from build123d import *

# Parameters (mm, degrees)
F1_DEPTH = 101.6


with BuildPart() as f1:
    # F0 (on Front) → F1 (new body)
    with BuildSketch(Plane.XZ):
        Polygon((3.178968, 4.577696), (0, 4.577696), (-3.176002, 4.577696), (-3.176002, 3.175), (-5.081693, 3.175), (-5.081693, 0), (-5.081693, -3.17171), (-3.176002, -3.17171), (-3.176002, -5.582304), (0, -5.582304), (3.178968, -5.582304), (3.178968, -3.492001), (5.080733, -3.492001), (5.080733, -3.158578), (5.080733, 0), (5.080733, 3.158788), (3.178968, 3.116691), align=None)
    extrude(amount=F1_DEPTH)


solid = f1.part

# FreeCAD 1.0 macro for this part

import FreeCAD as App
import Part
import Sketcher
from FreeCAD import Vector
Q = App.Units.Quantity


def add_polygon(sketch, points):
    """Adds a closed chain of lines whose ends are joined by coincident constraints."""
    first, n = sketch.GeometryCount, len(points)
    for a, b in zip(points, points[1:] + points[:1]):
        sketch.addGeometry(Part.LineSegment(App.Vector(*a, 0), App.Vector(*b, 0)), False)
    for i in range(n):
        sketch.addConstraint(Sketcher.Constraint("Coincident", first + i, 2, first + (i + 1) % n, 1))

doc = App.newDocument("Part")
body = doc.addObject("PartDesign::Body", "Body")

# Sketch on XZ plane
sketch1 = body.newObject("Sketcher::SketchObject", "Sketch")
sketch1.AttachmentSupport = (doc.getObject("XZ_Plane"), [""])
sketch1.MapMode = "FlatFace"
add_polygon(sketch1, [(3.178968, 4.577696), (-3.176002, 4.577696), (-3.176002, 3.175), (-5.081693, 3.175), (-5.081693, -3.17171), (-3.176002, -3.17171), (-3.176002, -5.582304), (3.178968, -5.582304), (3.178968, -3.492001), (5.080733, -3.492001), (5.080733, 3.158788), (3.178968, 3.116691)])  # lines 0-11
sketch1.addConstraint([
    Sketcher.Constraint("Horizontal", 0),
    Sketcher.Constraint("Vertical", 1),
    Sketcher.Constraint("Horizontal", 2),
    Sketcher.Constraint("Vertical", 3),
    Sketcher.Constraint("Horizontal", 4),
    Sketcher.Constraint("Vertical", 5),
    Sketcher.Constraint("Horizontal", 6),
    Sketcher.Constraint("Vertical", 7),
    Sketcher.Constraint("Horizontal", 8),
    Sketcher.Constraint("Vertical", 9),
    Sketcher.Constraint("Vertical", 11),
    Sketcher.Constraint("Vertical", 1, 2, 4, 2),
    Sketcher.Constraint("Vertical", 7, 2, 10, 2),
    Sketcher.Constraint("DistanceY", 5, 2, 0, 2, Q("0.4 in")),
    Sketcher.Constraint("DistanceY", -1, 1, 1, 2, Q("0.125 in")),
    Sketcher.Constraint("DistanceX", 0, 2, 0, 1, Q("6.35497 mm")),
    Sketcher.Constraint("DistanceX", 2, 2, 2, 1, Q("1.905691 mm")),
    Sketcher.Constraint("DistanceY", 3, 2, 3, 1, Q("6.34671 mm")),
    Sketcher.Constraint("DistanceY", 9, 1, 9, 2, Q("6.650789 mm")),
    Sketcher.Constraint("DistanceX", 0, 2, -1, 1, Q("3.176002 mm")),
    Sketcher.Constraint("DistanceY", 7, 2, -1, 1, Q("3.492001 mm")),
    Sketcher.Constraint("Distance", 10, Q("1.902231 mm")),
    Sketcher.Constraint("DistanceX", 8, 1, 8, 2, Q("1.901765 mm")),
    Sketcher.Constraint("DistanceY", 1, 2, 1, 1, Q("1.402696 mm")),
])
pad1 = body.newObject("PartDesign::Pad", "Pad")
pad1.Profile = sketch1
pad1.Length = Q("4 in")

doc.recompute()
